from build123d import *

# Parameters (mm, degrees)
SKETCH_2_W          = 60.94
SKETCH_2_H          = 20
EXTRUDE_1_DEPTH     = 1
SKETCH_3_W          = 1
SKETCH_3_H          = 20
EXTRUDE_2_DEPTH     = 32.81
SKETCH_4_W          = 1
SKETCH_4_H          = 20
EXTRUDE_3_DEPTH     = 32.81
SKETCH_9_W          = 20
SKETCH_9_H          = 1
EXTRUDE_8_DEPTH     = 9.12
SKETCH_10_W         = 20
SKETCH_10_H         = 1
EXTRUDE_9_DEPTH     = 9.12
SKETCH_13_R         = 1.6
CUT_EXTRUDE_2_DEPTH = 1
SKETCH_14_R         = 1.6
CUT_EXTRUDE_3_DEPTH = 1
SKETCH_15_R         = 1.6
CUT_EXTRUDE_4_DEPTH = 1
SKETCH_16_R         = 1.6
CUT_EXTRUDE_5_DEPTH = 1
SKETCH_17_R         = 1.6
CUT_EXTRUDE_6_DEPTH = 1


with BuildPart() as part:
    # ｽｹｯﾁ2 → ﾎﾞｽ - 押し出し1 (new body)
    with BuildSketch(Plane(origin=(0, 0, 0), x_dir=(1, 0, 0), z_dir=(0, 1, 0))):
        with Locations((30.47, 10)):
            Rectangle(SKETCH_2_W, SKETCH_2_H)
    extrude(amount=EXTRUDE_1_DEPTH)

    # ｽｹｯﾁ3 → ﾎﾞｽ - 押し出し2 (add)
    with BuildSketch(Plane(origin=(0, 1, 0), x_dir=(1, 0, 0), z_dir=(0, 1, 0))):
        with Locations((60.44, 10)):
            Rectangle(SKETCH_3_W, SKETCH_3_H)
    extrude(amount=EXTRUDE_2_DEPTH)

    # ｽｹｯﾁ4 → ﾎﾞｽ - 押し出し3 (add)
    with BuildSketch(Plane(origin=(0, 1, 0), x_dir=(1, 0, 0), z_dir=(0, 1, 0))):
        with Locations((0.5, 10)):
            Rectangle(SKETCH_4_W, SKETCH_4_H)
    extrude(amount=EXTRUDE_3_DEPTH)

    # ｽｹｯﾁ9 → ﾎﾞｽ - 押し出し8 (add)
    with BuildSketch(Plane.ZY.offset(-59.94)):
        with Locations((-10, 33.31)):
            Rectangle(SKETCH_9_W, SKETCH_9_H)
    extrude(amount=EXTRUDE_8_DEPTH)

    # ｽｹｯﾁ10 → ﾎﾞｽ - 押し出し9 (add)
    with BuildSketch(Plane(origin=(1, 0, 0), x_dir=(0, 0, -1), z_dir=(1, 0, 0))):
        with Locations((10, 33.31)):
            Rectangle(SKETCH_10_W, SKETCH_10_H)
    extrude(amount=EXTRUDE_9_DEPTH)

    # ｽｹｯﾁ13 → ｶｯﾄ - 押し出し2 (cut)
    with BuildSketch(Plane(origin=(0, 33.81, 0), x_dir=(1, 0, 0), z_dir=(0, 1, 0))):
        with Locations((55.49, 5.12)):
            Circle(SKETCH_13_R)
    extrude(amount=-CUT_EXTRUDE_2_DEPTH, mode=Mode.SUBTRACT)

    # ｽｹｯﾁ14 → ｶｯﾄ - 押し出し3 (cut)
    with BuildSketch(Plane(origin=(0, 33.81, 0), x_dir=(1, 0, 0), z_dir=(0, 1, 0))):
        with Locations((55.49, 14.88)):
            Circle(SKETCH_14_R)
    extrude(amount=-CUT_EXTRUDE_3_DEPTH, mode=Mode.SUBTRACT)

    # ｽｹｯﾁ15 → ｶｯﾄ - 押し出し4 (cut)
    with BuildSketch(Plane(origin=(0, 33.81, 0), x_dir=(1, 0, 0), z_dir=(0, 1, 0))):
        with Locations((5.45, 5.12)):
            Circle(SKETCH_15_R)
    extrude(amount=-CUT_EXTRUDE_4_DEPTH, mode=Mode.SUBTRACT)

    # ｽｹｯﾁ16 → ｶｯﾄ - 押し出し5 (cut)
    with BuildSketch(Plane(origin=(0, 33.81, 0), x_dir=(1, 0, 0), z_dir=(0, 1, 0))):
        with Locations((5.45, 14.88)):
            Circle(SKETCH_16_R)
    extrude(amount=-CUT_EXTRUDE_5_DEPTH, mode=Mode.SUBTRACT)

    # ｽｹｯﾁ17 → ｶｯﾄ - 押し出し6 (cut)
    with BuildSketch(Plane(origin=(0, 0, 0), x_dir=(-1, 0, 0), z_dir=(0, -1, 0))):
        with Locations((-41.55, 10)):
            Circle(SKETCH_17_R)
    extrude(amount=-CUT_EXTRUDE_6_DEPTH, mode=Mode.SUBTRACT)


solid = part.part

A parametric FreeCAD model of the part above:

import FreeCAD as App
import Part
import Sketcher

V = App.Vector

doc = App.newDocument("Part")
params = doc.addObject("Spreadsheet::Sheet", "Params")
for row, (alias, value) in enumerate([
    ("sketch1_height", "20 mm"),
    ("sketch1_width", "60.94 mm"),
    ("pad1_length", "1 mm"),
    ("sketch2_width", "1 mm"),
    ("sketch2_height", "20 mm"),
    ("pad2_length", "32.81 mm"),
    ("sketch3_width", "1 mm"),
    ("sketch3_height", "20 mm"),
    ("pad3_length", "32.81 mm"),
    ("sketch4_width", "1 mm"),
    ("sketch4_height", "20 mm"),
    ("pad4_length", "9.12 mm"),
    ("sketch5_width", "1 mm"),
    ("sketch5_height", "20 mm"),
    ("pad5_length", "9.12 mm"),
    ("sketch6_diameter", "3.2 mm"),
    ("pocket1_length", "1 mm"),
    ("sketch7_diameter", "3.2 mm"),
    ("pocket2_length", "1 mm"),
    ("sketch8_diameter", "3.2 mm"),
    ("pocket3_length", "1 mm"),
    ("sketch9_diameter", "3.2 mm"),
    ("pocket4_length", "1 mm"),
    ("sketch10_diameter", "3.2 mm"),
    ("pocket5_length", "1 mm"),
], start=1):
    params.set(f"A{row}", alias)
    params.set(f"B{row}", "=" + value)
    params.setAlias(f"B{row}", alias)

body = doc.addObject("PartDesign::Body", "Body")

# Sketch on XZ plane
sketch1 = body.newObject("Sketcher::SketchObject", "Sketch")
sketch1.AttachmentSupport = (doc.getObject("XZ_Plane"), [""])
sketch1.MapMode = "FlatFace"
sketch1.addGeometry([
    Part.LineSegment(V(0, -20, 0), V(0, 0, 0)),
    Part.LineSegment(V(0, 0, 0), V(61, 0, 0)),
    Part.LineSegment(V(61, 0, 0), V(61, -20, 0)),
    Part.LineSegment(V(61, -20, 0), V(0, -20, 0)),
], False)
sketch1.addConstraint([
    Sketcher.Constraint("Coincident", 0, 2, 1, 1),
    Sketcher.Constraint("Coincident", 1, 2, 2, 1),
    Sketcher.Constraint("Coincident", 2, 2, 3, 1),
    Sketcher.Constraint("Coincident", 3, 2, 0, 1),
    Sketcher.Constraint("Vertical", 0),
    Sketcher.Constraint("Horizontal", 1),
    Sketcher.Constraint("Vertical", 2),
    Sketcher.Constraint("Horizontal", 3),
    Sketcher.Constraint("Coincident", 0, 2, -1, 1),
    Sketcher.Constraint("DistanceY", 0, 1, 0, 2, 20.0),
    Sketcher.Constraint("DistanceX", 1, 1, 1, 2, 60.94),
])
sketch1.setExpression("Constraints[9]", "Params.sketch1_height")
sketch1.setExpression("Constraints[10]", "Params.sketch1_width")
pad1 = body.newObject("PartDesign::Pad", "Pad")
pad1.Profile = sketch1
pad1.setExpression("Length", "Params.pad1_length")
pad1.Reversed = True

# Sketch on XZ plane
sketch2 = body.newObject("Sketcher::SketchObject", "Sketch001")
sketch2.AttachmentSupport = (doc.getObject("XZ_Plane"), [""])
sketch2.MapMode = "FlatFace"
sketch2.AttachmentOffset = App.Placement(V(0, 0, -1), App.Rotation())
sketch2.addGeometry([
    Part.LineSegment(V(59.9, -20, 0), V(59.9, 0, 0)),
    Part.LineSegment(V(59.9, 0, 0), V(60.9, 0, 0)),
    Part.LineSegment(V(60.9, 0, 0), V(60.9, -20, 0)),
    Part.LineSegment(V(60.9, -20, 0), V(59.9, -20, 0)),
], False)
sketch2.addConstraint([
    Sketcher.Constraint("Coincident", 0, 2, 1, 1),
    Sketcher.Constraint("Coincident", 1, 2, 2, 1),
    Sketcher.Constraint("Coincident", 2, 2, 3, 1),
    Sketcher.Constraint("Coincident", 3, 2, 0, 1),
    Sketcher.Constraint("Vertical", 0),
    Sketcher.Constraint("Horizontal", 1),
    Sketcher.Constraint("Vertical", 2),
    Sketcher.Constraint("Horizontal", 3),
    Sketcher.Constraint("PointOnObject", 0, 2, -1),
    Sketcher.Constraint("DistanceX", 1, 1, 1, 2, 1.0),
    Sketcher.Constraint("DistanceY", 0, 1, 0, 2, 20.0),
    Sketcher.Constraint("DistanceX", -1, 1, 0, 2, 59.94),
])
sketch2.setExpression("Constraints[9]", "Params.sketch2_width")
sketch2.setExpression("Constraints[10]", "Params.sketch2_height")
pad2 = body.newObject("PartDesign::Pad", "Pad001")
pad2.Profile = sketch2
pad2.setExpression("Length", "Params.pad2_length")
pad2.Reversed = True

# Sketch on XZ plane
sketch3 = body.newObject("Sketcher::SketchObject", "Sketch002")
sketch3.AttachmentSupport = (doc.getObject("XZ_Plane"), [""])
sketch3.MapMode = "FlatFace"
sketch3.AttachmentOffset = App.Placement(V(0, 0, -1), App.Rotation())
sketch3.addGeometry([
    Part.LineSegment(V(0, -20, 0), V(0, 0, 0)),
    Part.LineSegment(V(0, 0, 0), V(1, 0, 0)),
    Part.LineSegment(V(1, 0, 0), V(1, -20, 0)),
    Part.LineSegment(V(1, -20, 0), V(0, -20, 0)),
], False)
sketch3.addConstraint([
    Sketcher.Constraint("Coincident", 0, 2, 1, 1),
    Sketcher.Constraint("Coincident", 1, 2, 2, 1),
    Sketcher.Constraint("Coincident", 2, 2, 3, 1),
    Sketcher.Constraint("Coincident", 3, 2, 0, 1),
    Sketcher.Constraint("Vertical", 0),
    Sketcher.Constraint("Horizontal", 1),
    Sketcher.Constraint("Vertical", 2),
    Sketcher.Constraint("Horizontal", 3),
    Sketcher.Constraint("Coincident", 0, 2, -1, 1),
    Sketcher.Constraint("DistanceX", 1, 1, 1, 2, 1.0),
    Sketcher.Constraint("DistanceY", 0, 1, 0, 2, 20.0),
])
sketch3.setExpression("Constraints[9]", "Params.sketch3_width")
sketch3.setExpression("Constraints[10]", "Params.sketch3_height")
pad3 = body.newObject("PartDesign::Pad", "Pad002")
pad3.Profile = sketch3
pad3.setExpression("Length", "Params.pad3_length")
pad3.Reversed = True

# Sketch on YZ plane
sketch4 = body.newObject("Sketcher::SketchObject", "Sketch003")
sketch4.AttachmentSupport = (doc.getObject("YZ_Plane"), [""])
sketch4.MapMode = "FlatFace"
sketch4.AttachmentOffset = App.Placement(V(0, 0, 59.94), App.Rotation())
sketch4.addGeometry([
    Part.LineSegment(V(33.8, -20, 0), V(32.8, -20, 0)),
    Part.LineSegment(V(32.8, -20, 0), V(32.8, 0, 0)),
    Part.LineSegment(V(32.8, 0, 0), V(33.8, 0, 0)),
    Part.LineSegment(V(33.8, 0, 0), V(33.8, -20, 0)),
], False)
sketch4.addConstraint([
    Sketcher.Constraint("Coincident", 0, 2, 1, 1),
    Sketcher.Constraint("Coincident", 1, 2, 2, 1),
    Sketcher.Constraint("Coincident", 2, 2, 3, 1),
    Sketcher.Constraint("Coincident", 3, 2, 0, 1),
    Sketcher.Constraint("Horizontal", 0),
    Sketcher.Constraint("Vertical", 1),
    Sketcher.Constraint("Horizontal", 2),
    Sketcher.Constraint("Vertical", 3),
    Sketcher.Constraint("PointOnObject", 1, 2, -1),
    Sketcher.Constraint("DistanceX", 0, 2, 0, 1, 1.0),
    Sketcher.Constraint("DistanceY", 1, 1, 1, 2, 20.0),
    Sketcher.Constraint("DistanceX", -1, 1, 0, 2, 32.81),
])
sketch4.setExpression("Constraints[9]", "Params.sketch4_width")
sketch4.setExpression("Constraints[10]", "Params.sketch4_height")
pad4 = body.newObject("PartDesign::Pad", "Pad003")
pad4.Profile = sketch4
pad4.setExpression("Length", "Params.pad4_length")
pad4.Reversed = True

# Sketch on YZ plane
sketch5 = body.newObject("Sketcher::SketchObject", "Sketch004")
sketch5.AttachmentSupport = (doc.getObject("YZ_Plane"), [""])
sketch5.MapMode = "FlatFace"
sketch5.AttachmentOffset = App.Placement(V(0, 0, 1), App.Rotation())
sketch5.addGeometry([
    Part.LineSegment(V(33.8, 0, 0), V(32.8, 0, 0)),
    Part.LineSegment(V(32.8, 0, 0), V(32.8, -20, 0)),
    Part.LineSegment(V(32.8, -20, 0), V(33.8, -20, 0)),
    Part.LineSegment(V(33.8, -20, 0), V(33.8, 0, 0)),
], False)
sketch5.addConstraint([
    Sketcher.Constraint("Coincident", 0, 2, 1, 1),
    Sketcher.Constraint("Coincident", 1, 2, 2, 1),
    Sketcher.Constraint("Coincident", 2, 2, 3, 1),
    Sketcher.Constraint("Coincident", 3, 2, 0, 1),
    Sketcher.Constraint("Horizontal", 0),
    Sketcher.Constraint("Vertical", 1),
    Sketcher.Constraint("Horizontal", 2),
    Sketcher.Constraint("Vertical", 3),
    Sketcher.Constraint("PointOnObject", 0, 2, -1),
    Sketcher.Constraint("DistanceX", 0, 2, 0, 1, 1.0),
    Sketcher.Constraint("DistanceY", 1, 2, 1, 1, 20.0),
    Sketcher.Constraint("DistanceX", -1, 1, 0, 2, 32.81),
])
sketch5.setExpression("Constraints[9]", "Params.sketch5_width")
sketch5.setExpression("Constraints[10]", "Params.sketch5_height")
pad5 = body.newObject("PartDesign::Pad", "Pad004")
pad5.Profile = sketch5
pad5.setExpression("Length", "Params.pad5_length")

# Sketch on XZ plane
sketch6 = body.newObject("Sketcher::SketchObject", "Sketch005")
sketch6.AttachmentSupport = (doc.getObject("XZ_Plane"), [""])
sketch6.MapMode = "FlatFace"
sketch6.AttachmentOffset = App.Placement(V(0, 0, -33.81), App.Rotation())
sketch6.addGeometry(Part.Circle(V(55.5, -5.1, 0), V(0, 0, 1), 1.6), False)
sketch6.addConstraint([
    Sketcher.Constraint("Diameter", 0, 3.2),
    Sketcher.Constraint("DistanceX", -1, 1, 0, 3, 55.49),
    Sketcher.Constraint("DistanceY", 0, 3, -1, 1, 5.12),
])
sketch6.setExpression("Constraints[0]", "Params.sketch6_diameter")
pocket1 = body.newObject("PartDesign::Pocket", "Pocket")
pocket1.Profile = sketch6
pocket1.setExpression("Length", "Params.pocket1_length")
pocket1.Reversed = True

# Sketch on XZ plane
sketch7 = body.newObject("Sketcher::SketchObject", "Sketch006")
sketch7.AttachmentSupport = (doc.getObject("XZ_Plane"), [""])
sketch7.MapMode = "FlatFace"
sketch7.AttachmentOffset = App.Placement(V(0, 0, -33.81), App.Rotation())
sketch7.addGeometry(Part.Circle(V(55.5, -14.9, 0), V(0, 0, 1), 1.6), False)
sketch7.addConstraint([
    Sketcher.Constraint("Diameter", 0, 3.2),
    Sketcher.Constraint("DistanceX", -1, 1, 0, 3, 55.49),
    Sketcher.Constraint("DistanceY", 0, 3, -1, 1, 14.88),
])
sketch7.setExpression("Constraints[0]", "Params.sketch7_diameter")
pocket2 = body.newObject("PartDesign::Pocket", "Pocket001")
pocket2.Profile = sketch7
pocket2.setExpression("Length", "Params.pocket2_length")
pocket2.Reversed = True

# Sketch on XZ plane
sketch8 = body.newObject("Sketcher::SketchObject", "Sketch007")
sketch8.AttachmentSupport = (doc.getObject("XZ_Plane"), [""])
sketch8.MapMode = "FlatFace"
sketch8.AttachmentOffset = App.Placement(V(0, 0, -33.81), App.Rotation())
sketch8.addGeometry(Part.Circle(V(5.5, -5.1, 0), V(0, 0, 1), 1.6), False)
sketch8.addConstraint([
    Sketcher.Constraint("Diameter", 0, 3.2),
    Sketcher.Constraint("DistanceX", -1, 1, 0, 3, 5.45),
    Sketcher.Constraint("DistanceY", 0, 3, -1, 1, 5.12),
])
sketch8.setExpression("Constraints[0]", "Params.sketch8_diameter")
pocket3 = body.newObject("PartDesign::Pocket", "Pocket002")
pocket3.Profile = sketch8
pocket3.setExpression("Length", "Params.pocket3_length")
pocket3.Reversed = True

# Sketch on XZ plane
sketch9 = body.newObject("Sketcher::SketchObject", "Sketch008")
sketch9.AttachmentSupport = (doc.getObject("XZ_Plane"), [""])
sketch9.MapMode = "FlatFace"
sketch9.AttachmentOffset = App.Placement(V(0, 0, -33.81), App.Rotation())
sketch9.addGeometry(Part.Circle(V(5.5, -14.9, 0), V(0, 0, 1), 1.6), False)
sketch9.addConstraint([
    Sketcher.Constraint("Diameter", 0, 3.2),
    Sketcher.Constraint("DistanceX", -1, 1, 0, 3, 5.45),
    Sketcher.Constraint("DistanceY", 0, 3, -1, 1, 14.88),
])
sketch9.setExpression("Constraints[0]", "Params.sketch9_diameter")
pocket4 = body.newObject("PartDesign::Pocket", "Pocket003")
pocket4.Profile = sketch9
pocket4.setExpression("Length", "Params.pocket4_length")
pocket4.Reversed = True

# Sketch on XZ plane
sketch10 = body.newObject("Sketcher::SketchObject", "Sketch009")
sketch10.AttachmentSupport = (doc.getObject("XZ_Plane"), [""])
sketch10.MapMode = "FlatFace"
sketch10.addGeometry(Part.Circle(V(41.5, -10, 0), V(0, 0, 1), 1.6), False)
sketch10.addConstraint([
    Sketcher.Constraint("Diameter", 0, 3.2),
    Sketcher.Constraint("DistanceY", 0, 3, -1, 1, 10.0),
    Sketcher.Constraint("DistanceX", -1, 1, 0, 3, 41.55),
])
sketch10.setExpression("Constraints[0]", "Params.sketch10_diameter")
pocket5 = body.newObject("PartDesign::Pocket", "Pocket004")
pocket5.Profile = sketch10
pocket5.setExpression("Length", "Params.pocket5_length")

doc.recompute()
